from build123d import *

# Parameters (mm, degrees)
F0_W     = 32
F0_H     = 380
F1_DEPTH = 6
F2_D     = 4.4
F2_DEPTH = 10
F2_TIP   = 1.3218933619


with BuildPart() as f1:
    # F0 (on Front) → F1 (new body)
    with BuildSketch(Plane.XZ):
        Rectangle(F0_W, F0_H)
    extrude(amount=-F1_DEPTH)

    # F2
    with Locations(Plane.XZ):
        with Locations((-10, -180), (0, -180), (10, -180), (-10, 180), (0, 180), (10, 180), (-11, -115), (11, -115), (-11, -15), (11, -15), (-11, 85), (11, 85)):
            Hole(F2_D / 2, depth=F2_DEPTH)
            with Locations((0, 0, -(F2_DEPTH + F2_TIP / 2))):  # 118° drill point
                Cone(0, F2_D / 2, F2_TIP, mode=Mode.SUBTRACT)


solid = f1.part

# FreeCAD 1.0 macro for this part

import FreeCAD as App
import Part
import Sketcher

V = App.Vector
Q = App.Units.Quantity


def add_polygon(sketch, points):
    """Adds a closed chain of lines whose ends are joined by coincident constraints."""
    first, n = sketch.GeometryCount, len(points)
    for a, b in zip(points, points[1:] + points[:1]):
        sketch.addGeometry(Part.LineSegment(App.Vector(*a, 0), App.Vector(*b, 0)), False)
    for i in range(n):
        sketch.addConstraint(Sketcher.Constraint("Coincident", first + i, 2, first + (i + 1) % n, 1))

doc = App.newDocument("Part")
body = doc.addObject("PartDesign::Body", "Body")

sketch1 = doc.addObject("Sketcher::SketchObject", "Sketch")
body.addObject(sketch1)
sketch1.AttachmentSupport = (doc.XZ_Plane, [""])
sketch1.MapMode = "FlatFace"
add_polygon(sketch1, [(-16, 190), (-16, -190), (16, -190), (16, 190)])
sketch1.addConstraint([
    Sketcher.Constraint("Vertical", 0),
    Sketcher.Constraint("Horizontal", 1),
    Sketcher.Constraint("Vertical", 2),
    Sketcher.Constraint("Horizontal", 3),
    Sketcher.Constraint("Symmetric", 0, 2, 2, 2, -1, 1),
    Sketcher.Constraint("DistanceX", 1, 1, 1, 2, Q("32 mm")),
    Sketcher.Constraint("DistanceY", 0, 2, 0, 1, Q("380 mm")),
])
pad1 = doc.addObject("PartDesign::Pad", "Pad")
body.addObject(pad1)
pad1.Profile = sketch1
pad1.Length = 6
pad1.Reversed = True

sketch2 = doc.addObject("Sketcher::SketchObject", "Sketch001")
body.addObject(sketch2)
sketch2.AttachmentSupport = (doc.XZ_Plane, [""])
sketch2.MapMode = "FlatFace"
sketch2.addGeometry([
    Part.Circle(V(-10, -180, 0), V(0, 0, 1), 2.2),
    Part.Circle(V(0, -180, 0), V(0, 0, 1), 2.2),
    Part.Circle(V(10, -180, 0), V(0, 0, 1), 2.2),
    Part.Circle(V(-10, 180, 0), V(0, 0, 1), 2.2),
    Part.Circle(V(0, 180, 0), V(0, 0, 1), 2.2),
    Part.Circle(V(10, 180, 0), V(0, 0, 1), 2.2),
    Part.Circle(V(-11, -115, 0), V(0, 0, 1), 2.2),
    Part.Circle(V(11, -115, 0), V(0, 0, 1), 2.2),
    Part.Circle(V(-11, -15, 0), V(0, 0, 1), 2.2),
    Part.Circle(V(11, -15, 0), V(0, 0, 1), 2.2),
    Part.Circle(V(-11, 85, 0), V(0, 0, 1), 2.2),
    Part.Circle(V(11, 85, 0), V(0, 0, 1), 2.2),
], False)
sketch2.addConstraint([
    Sketcher.Constraint("Equal", 0, 1),
    Sketcher.Constraint("Equal", 1, 2),
    Sketcher.Constraint("Equal", 2, 3),
    Sketcher.Constraint("Equal", 3, 4),
    Sketcher.Constraint("Equal", 4, 5),
    Sketcher.Constraint("Equal", 5, 6),
    Sketcher.Constraint("Equal", 6, 7),
    Sketcher.Constraint("Equal", 7, 8),
    Sketcher.Constraint("Equal", 8, 9),
    Sketcher.Constraint("Equal", 9, 10),
    Sketcher.Constraint("Equal", 10, 11),
    Sketcher.Constraint("Symmetric", 2, 3, 3, 3, -1, 1),
    Sketcher.Constraint("Symmetric", 1, 3, 4, 3, -1, 1),
    Sketcher.Constraint("Symmetric", 0, 3, 5, 3, -1, 1),
    Sketcher.Constraint("Symmetric", 0, 3, 2, 3, -2),
    Sketcher.Constraint("Symmetric", 6, 3, 7, 3, -2),
    Sketcher.Constraint("Symmetric", 8, 3, 9, 3, -2),
    Sketcher.Constraint("Symmetric", 10, 3, 11, 3, -2),
    Sketcher.Constraint("PointOnObject", 1, 3, -2),
    Sketcher.Constraint("Horizontal", 0, 3, 1, 3),
    Sketcher.Constraint("Vertical", 6, 3, 8, 3),
    Sketcher.Constraint("Vertical", 8, 3, 10, 3),
    Sketcher.Constraint("Diameter", 0, Q("4.4 mm")),
    Sketcher.Constraint("DistanceX", 0, 3, -1, 1, Q("10 mm")),
    Sketcher.Constraint("DistanceY", 0, 3, -1, 1, Q("180 mm")),
    Sketcher.Constraint("DistanceX", 6, 3, -1, 1, Q("11 mm")),
    Sketcher.Constraint("DistanceY", 6, 3, -1, 1, Q("115 mm")),
    Sketcher.Constraint("DistanceY", 8, 3, -1, 1, Q("15 mm")),
    Sketcher.Constraint("DistanceY", -1, 1, 10, 3, Q("85 mm")),
])
doc.recompute()
hole = doc.addObject("PartDesign::Hole", "Hole")
body.addObject(hole)
hole.Profile = sketch2
hole.ThreadType = "None"
hole.Diameter = 4.4
hole.DepthType = "Dimension"
hole.Depth = 10
hole.DrillPoint = "Angled"
hole.DrillPointAngle = 118

doc.recompute()
